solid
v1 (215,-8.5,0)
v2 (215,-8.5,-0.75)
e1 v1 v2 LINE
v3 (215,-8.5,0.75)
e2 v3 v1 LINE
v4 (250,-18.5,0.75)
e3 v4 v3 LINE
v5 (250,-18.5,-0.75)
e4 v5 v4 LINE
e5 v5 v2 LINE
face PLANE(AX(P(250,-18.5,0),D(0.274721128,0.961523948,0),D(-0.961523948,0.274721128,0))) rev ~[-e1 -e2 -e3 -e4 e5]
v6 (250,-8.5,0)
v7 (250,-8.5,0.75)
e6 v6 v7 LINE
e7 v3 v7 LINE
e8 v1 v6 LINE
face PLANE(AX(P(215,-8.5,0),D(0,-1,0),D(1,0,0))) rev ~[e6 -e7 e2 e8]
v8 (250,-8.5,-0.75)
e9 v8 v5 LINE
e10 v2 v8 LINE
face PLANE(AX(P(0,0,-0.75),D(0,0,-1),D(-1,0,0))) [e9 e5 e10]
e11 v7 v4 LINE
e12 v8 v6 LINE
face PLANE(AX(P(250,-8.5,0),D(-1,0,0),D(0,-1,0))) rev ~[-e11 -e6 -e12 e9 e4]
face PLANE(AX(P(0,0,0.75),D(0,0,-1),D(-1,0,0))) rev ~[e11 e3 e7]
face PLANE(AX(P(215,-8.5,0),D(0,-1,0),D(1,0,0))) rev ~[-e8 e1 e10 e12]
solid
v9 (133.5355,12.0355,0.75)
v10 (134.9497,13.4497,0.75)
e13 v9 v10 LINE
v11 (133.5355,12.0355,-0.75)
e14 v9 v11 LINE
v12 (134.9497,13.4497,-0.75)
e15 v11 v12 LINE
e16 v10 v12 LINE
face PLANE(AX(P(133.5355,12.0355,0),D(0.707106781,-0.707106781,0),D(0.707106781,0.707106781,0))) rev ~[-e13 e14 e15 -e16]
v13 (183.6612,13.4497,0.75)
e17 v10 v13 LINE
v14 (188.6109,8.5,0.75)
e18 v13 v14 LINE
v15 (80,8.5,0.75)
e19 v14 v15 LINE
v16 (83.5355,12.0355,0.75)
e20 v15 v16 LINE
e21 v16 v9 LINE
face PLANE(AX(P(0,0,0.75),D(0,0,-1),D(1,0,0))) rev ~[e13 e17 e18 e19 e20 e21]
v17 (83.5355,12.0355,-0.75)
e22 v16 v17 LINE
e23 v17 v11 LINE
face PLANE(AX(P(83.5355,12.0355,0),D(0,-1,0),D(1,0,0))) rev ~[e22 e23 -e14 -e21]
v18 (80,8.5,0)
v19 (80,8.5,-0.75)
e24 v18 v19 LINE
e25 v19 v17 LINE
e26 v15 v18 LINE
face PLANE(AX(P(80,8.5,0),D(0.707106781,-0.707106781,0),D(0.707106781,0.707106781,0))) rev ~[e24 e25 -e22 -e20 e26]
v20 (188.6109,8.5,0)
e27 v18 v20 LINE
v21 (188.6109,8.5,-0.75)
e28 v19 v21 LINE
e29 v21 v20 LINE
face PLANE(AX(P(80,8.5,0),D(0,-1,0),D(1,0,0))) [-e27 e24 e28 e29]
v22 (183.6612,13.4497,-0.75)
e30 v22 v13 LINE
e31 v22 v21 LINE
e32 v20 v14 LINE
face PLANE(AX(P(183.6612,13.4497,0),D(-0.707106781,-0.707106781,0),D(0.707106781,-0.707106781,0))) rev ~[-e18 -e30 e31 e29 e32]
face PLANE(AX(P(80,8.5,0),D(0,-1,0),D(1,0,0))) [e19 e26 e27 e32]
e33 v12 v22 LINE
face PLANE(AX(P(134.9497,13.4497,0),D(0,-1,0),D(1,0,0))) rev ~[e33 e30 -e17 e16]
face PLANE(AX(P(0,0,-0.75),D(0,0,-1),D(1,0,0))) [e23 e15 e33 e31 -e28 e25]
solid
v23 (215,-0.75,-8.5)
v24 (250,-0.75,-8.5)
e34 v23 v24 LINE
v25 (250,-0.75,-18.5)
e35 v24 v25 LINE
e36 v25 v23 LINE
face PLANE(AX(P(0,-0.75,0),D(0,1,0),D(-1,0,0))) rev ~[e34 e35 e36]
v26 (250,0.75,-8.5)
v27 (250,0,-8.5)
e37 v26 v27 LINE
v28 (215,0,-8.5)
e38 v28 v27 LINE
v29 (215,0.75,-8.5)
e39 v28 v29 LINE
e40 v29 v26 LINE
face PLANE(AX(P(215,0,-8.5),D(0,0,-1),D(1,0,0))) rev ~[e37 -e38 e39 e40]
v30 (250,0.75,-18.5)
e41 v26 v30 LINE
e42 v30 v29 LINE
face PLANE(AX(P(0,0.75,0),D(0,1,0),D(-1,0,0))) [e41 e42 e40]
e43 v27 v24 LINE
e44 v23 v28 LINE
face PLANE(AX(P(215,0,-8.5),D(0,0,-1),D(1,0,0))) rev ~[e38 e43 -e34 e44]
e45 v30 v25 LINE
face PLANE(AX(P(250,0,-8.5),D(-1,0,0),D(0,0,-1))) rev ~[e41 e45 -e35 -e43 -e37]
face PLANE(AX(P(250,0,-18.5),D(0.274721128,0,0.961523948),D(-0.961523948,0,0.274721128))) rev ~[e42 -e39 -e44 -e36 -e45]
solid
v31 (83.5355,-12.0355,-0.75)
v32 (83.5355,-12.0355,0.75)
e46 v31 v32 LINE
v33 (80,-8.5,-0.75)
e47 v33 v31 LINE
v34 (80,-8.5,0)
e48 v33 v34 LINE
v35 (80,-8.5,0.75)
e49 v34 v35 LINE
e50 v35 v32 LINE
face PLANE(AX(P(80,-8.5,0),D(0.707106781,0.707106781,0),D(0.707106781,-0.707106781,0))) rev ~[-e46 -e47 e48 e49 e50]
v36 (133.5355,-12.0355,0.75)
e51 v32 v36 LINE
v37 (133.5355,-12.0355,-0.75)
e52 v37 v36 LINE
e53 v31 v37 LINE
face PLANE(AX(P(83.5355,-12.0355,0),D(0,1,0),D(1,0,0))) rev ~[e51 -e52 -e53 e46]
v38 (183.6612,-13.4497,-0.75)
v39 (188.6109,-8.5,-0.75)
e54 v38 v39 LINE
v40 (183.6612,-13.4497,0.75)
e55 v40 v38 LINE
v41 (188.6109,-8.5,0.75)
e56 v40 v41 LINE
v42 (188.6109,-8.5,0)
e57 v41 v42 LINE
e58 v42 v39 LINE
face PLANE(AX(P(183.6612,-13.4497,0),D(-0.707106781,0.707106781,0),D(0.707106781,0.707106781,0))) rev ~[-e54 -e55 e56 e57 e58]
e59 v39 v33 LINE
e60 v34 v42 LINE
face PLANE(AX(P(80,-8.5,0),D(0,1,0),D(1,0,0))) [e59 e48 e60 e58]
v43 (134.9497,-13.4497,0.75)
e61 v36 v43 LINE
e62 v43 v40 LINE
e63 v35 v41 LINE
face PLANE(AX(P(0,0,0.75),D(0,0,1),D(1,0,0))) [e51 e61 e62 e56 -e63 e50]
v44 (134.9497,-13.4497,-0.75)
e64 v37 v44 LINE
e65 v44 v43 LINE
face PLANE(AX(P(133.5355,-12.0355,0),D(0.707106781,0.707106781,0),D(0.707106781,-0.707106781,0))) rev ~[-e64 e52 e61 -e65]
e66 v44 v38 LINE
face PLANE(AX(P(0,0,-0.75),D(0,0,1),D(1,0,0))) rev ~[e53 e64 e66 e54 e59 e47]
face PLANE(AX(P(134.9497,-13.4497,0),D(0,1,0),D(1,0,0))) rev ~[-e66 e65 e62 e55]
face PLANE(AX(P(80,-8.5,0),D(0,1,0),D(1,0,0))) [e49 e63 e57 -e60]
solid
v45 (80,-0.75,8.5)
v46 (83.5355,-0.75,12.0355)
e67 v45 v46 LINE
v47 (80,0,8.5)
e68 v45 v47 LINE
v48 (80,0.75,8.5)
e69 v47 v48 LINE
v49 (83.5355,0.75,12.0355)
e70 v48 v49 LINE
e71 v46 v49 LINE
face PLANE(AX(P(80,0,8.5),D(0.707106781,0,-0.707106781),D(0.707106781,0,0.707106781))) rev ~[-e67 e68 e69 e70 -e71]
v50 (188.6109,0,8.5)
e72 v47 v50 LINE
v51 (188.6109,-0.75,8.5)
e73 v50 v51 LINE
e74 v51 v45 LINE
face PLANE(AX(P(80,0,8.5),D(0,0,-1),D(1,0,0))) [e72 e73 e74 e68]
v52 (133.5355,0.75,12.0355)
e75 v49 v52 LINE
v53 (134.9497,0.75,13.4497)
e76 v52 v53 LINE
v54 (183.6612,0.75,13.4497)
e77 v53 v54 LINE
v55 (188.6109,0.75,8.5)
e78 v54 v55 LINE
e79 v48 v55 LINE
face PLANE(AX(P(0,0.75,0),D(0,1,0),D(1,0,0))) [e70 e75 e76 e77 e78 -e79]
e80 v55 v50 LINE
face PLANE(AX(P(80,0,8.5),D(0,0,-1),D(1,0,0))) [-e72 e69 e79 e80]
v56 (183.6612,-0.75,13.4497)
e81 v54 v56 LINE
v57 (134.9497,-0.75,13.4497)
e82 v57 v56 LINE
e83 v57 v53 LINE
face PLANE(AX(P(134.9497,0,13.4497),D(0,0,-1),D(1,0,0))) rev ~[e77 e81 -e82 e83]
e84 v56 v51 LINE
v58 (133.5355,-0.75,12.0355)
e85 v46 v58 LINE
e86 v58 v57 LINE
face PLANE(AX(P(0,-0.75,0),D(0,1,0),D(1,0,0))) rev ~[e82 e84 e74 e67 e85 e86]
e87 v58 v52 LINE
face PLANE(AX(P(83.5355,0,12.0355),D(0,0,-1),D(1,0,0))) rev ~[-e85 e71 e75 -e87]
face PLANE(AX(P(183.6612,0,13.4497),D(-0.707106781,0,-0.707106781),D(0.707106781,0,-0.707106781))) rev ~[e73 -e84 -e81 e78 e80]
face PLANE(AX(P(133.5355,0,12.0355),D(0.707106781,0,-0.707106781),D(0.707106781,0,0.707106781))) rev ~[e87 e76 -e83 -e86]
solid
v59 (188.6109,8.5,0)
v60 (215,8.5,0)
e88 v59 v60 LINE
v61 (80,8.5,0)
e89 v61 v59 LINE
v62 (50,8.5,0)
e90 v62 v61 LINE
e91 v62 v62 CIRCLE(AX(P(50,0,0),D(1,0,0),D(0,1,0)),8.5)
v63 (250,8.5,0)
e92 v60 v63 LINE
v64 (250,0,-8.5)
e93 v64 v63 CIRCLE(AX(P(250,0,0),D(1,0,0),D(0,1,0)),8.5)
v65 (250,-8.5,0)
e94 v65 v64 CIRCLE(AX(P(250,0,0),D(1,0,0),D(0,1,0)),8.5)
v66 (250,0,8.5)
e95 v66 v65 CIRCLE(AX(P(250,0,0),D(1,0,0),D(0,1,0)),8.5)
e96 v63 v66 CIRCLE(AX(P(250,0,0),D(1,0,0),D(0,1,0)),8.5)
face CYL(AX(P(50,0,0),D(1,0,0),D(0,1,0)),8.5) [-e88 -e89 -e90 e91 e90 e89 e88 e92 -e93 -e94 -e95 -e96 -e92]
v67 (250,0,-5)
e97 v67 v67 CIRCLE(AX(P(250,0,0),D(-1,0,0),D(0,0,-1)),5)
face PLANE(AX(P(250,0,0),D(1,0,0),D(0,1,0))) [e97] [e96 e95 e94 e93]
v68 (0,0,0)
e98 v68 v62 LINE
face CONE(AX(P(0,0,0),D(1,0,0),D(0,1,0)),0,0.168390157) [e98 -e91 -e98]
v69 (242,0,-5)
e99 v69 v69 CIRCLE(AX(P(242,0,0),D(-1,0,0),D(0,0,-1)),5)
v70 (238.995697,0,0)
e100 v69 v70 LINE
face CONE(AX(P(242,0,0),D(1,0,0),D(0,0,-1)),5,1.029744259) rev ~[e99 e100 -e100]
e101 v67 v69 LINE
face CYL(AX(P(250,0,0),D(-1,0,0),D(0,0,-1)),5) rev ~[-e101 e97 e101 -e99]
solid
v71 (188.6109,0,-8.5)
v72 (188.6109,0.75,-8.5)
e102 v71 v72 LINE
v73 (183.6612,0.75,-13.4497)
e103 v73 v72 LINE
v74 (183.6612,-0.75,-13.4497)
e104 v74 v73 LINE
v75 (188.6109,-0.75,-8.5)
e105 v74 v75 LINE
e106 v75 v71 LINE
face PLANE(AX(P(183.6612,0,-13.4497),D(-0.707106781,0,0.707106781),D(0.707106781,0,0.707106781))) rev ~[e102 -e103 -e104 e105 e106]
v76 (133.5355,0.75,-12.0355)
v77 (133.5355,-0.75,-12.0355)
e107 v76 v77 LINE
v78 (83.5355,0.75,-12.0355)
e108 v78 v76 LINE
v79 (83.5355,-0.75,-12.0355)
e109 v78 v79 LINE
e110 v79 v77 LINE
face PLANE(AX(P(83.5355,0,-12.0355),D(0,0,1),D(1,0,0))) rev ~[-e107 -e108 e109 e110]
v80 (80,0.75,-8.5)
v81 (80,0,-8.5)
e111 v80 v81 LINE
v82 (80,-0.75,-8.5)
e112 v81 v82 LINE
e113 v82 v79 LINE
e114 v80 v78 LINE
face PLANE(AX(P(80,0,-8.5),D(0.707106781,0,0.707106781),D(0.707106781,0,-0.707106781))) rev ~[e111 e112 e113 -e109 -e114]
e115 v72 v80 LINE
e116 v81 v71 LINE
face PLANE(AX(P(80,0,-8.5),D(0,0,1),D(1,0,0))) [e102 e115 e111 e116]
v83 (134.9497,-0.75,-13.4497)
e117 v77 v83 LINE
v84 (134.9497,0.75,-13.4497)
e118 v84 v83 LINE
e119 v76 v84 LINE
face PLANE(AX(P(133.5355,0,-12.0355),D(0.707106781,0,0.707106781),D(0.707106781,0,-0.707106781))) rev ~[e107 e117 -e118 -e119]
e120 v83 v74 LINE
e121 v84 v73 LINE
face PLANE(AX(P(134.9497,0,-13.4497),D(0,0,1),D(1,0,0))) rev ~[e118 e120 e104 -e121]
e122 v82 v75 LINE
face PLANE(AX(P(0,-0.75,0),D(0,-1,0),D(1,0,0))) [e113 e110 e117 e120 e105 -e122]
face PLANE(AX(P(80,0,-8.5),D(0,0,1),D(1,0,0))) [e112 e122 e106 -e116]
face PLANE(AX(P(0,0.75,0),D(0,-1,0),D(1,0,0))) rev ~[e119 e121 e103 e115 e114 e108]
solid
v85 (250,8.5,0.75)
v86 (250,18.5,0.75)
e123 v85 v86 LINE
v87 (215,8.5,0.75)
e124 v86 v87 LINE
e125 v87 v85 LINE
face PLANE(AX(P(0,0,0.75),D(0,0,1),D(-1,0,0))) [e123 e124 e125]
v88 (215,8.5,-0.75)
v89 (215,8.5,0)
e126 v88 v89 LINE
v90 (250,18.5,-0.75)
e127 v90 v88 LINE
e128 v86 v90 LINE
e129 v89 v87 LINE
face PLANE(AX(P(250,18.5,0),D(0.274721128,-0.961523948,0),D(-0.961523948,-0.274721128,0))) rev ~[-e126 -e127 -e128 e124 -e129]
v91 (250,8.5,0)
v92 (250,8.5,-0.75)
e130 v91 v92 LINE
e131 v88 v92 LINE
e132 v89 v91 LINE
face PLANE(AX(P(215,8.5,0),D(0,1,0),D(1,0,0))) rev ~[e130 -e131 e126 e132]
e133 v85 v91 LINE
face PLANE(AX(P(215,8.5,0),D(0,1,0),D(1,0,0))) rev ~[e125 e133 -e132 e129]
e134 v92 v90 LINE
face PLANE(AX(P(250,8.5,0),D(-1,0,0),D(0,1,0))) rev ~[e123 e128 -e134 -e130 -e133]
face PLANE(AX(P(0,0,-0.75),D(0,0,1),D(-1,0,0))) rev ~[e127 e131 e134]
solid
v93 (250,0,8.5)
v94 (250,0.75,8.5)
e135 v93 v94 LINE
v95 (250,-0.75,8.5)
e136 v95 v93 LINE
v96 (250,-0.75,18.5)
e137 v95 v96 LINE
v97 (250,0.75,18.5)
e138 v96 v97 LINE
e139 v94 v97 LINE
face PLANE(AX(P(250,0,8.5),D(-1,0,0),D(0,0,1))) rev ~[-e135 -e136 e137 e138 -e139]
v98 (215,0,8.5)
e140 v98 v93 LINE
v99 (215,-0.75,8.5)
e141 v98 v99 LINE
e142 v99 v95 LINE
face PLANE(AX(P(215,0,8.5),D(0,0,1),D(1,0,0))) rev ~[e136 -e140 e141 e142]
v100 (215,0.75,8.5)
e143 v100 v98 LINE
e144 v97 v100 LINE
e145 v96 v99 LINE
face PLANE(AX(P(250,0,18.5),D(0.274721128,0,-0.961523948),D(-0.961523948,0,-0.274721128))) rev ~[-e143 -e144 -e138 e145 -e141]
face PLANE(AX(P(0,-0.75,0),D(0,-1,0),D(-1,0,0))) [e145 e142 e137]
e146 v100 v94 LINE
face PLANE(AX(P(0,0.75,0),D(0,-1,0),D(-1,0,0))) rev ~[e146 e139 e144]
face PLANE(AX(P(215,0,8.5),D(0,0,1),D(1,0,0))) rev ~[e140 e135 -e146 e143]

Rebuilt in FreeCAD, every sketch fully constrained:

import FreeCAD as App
import Part
import Sketcher
from FreeCAD import Vector
Q = App.Units.Quantity


def add_polygon(sketch, points):
    """Adds a closed chain of lines whose ends are joined by coincident constraints."""
    first, n = sketch.GeometryCount, len(points)
    for a, b in zip(points, points[1:] + points[:1]):
        sketch.addGeometry(Part.LineSegment(App.Vector(*a, 0), App.Vector(*b, 0)), False)
    for i in range(n):
        sketch.addConstraint(Sketcher.Constraint("Coincident", first + i, 2, first + (i + 1) % n, 1))

doc = App.newDocument("Part")
body = doc.addObject("PartDesign::Body", "Body")
body.AllowCompound = True

# Sketch on XY plane
sketch1 = doc.addObject("Sketcher::SketchObject", "Sketch")
body.addObject(sketch1)
sketch1.AttachmentSupport = (doc.XY_Plane, [""])
sketch1.MapMode = "FlatFace"
add_polygon(sketch1, [(50, 8), (0, 0), (250, 0), (250, 8)])  # lines 0-3
sketch1.addConstraint([
    Sketcher.Constraint("Horizontal", 1),
    Sketcher.Constraint("Vertical", 2),
    Sketcher.Constraint("Horizontal", 3),
    Sketcher.Constraint("Coincident", 0, 2, -1, 1),
    Sketcher.Constraint("DistanceX", 3, 2, 3, 1, 200.0),
    Sketcher.Constraint("DistanceX", -1, 1, 3, 2, 50.0),
    Sketcher.Constraint("DistanceY", 2, 1, 2, 2, 8.5),
])
revolution = doc.addObject("PartDesign::Revolution", "Revolution")
body.addObject(revolution)
revolution.Profile = sketch1
revolution.ReferenceAxis = (sketch1, ["H_Axis"])
revolution.Angle = 360

# Sketch on XY plane
sketch2 = doc.addObject("Sketcher::SketchObject", "Sketch001")
body.addObject(sketch2)
sketch2.AttachmentSupport = (doc.XY_Plane, [""])
sketch2.MapMode = "FlatFace"
add_polygon(sketch2, [(80, -8.5), (83.5, -12), (133.5, -12), (134.9, -13.4), (183.7, -13.4), (188.6, -8.5)])  # lines 0-5
sketch2.addConstraint([
    Sketcher.Constraint("Horizontal", 1),
    Sketcher.Constraint("Horizontal", 3),
    Sketcher.Constraint("Horizontal", 5),
    Sketcher.Constraint("Parallel", 0, 2),
    Sketcher.Constraint("Perpendicular", 2, 4),
    Sketcher.Constraint("DistanceX", 1, 1, 1, 2, 50.0),
    Sketcher.Constraint("Angle", 0, Q("-45 deg")),
    Sketcher.Constraint("Distance", 0, 5.0),
    Sketcher.Constraint("Distance", 2, 2.0),
    Sketcher.Constraint("DistanceX", -1, 1, 5, 2, 80.0),
    Sketcher.Constraint("DistanceY", 4, 2, -1, 1, 8.5),
    Sketcher.Constraint("DistanceX", 5, 2, 5, 1, 108.611),
])
pad1 = doc.addObject("PartDesign::Pad", "Pad")
body.addObject(pad1)
pad1.Profile = sketch2
pad1.Length = 1.5
pad1.Midplane = True
doc.recompute()

polarpattern = doc.addObject("PartDesign::PolarPattern", "PolarPattern")
body.addObject(polarpattern)
polarpattern.Originals = [pad1]
polarpattern.Axis = (doc.X_Axis, [""])
polarpattern.Angle = 360
polarpattern.Occurrences = 4
body.Tip = polarpattern

# Sketch on YZ plane
sketch3 = doc.addObject("Sketcher::SketchObject", "Sketch002")
body.addObject(sketch3)
sketch3.AttachmentSupport = (doc.YZ_Plane, [""])
sketch3.MapMode = "FlatFace"
sketch3.AttachmentOffset = App.Placement(Vector(0, 0, 250), App.Rotation())
sketch3.addGeometry(Part.Circle(Vector(0, 0, 0), Vector(0, 0, 1), 5), False)
sketch3.addConstraint([
    Sketcher.Constraint("Coincident", 0, 3, -1, 1),
    Sketcher.Constraint("Diameter", 0, 10.0),
])
doc.recompute()
hole = doc.addObject("PartDesign::Hole", "Hole")
body.addObject(hole)
hole.Profile = sketch3
hole.ThreadType = "None"
hole.Diameter = 10
hole.DepthType = "Dimension"
hole.Depth = 8
hole.DrillPoint = "Angled"
hole.DrillPointAngle = 118

# Sketch on XZ plane
sketch4 = doc.addObject("Sketcher::SketchObject", "Sketch003")
body.addObject(sketch4)
sketch4.AttachmentSupport = (doc.XZ_Plane, [""])
sketch4.MapMode = "FlatFace"
add_polygon(sketch4, [(250, -18), (215, -8), (250, -8)])  # lines 0-2
sketch4.addConstraint([
    Sketcher.Constraint("Horizontal", 1),
    Sketcher.Constraint("Vertical", 2),
    Sketcher.Constraint("DistanceX", 1, 1, 1, 2, 35.0),
    Sketcher.Constraint("DistanceY", 2, 2, 2, 1, 10.0),
    Sketcher.Constraint("DistanceX", -1, 1, 0, 2, 215.0),
    Sketcher.Constraint("DistanceY", 0, 2, -1, 1, 8.5),
])
pad2 = doc.addObject("PartDesign::Pad", "Pad001")
body.addObject(pad2)
pad2.Profile = sketch4
pad2.Length = 1.5
pad2.Midplane = True
doc.recompute()

polarpattern2 = doc.addObject("PartDesign::PolarPattern", "PolarPattern001")
body.addObject(polarpattern2)
polarpattern2.Originals = [pad2]
polarpattern2.Axis = (doc.X_Axis, [""])
polarpattern2.Angle = 360
polarpattern2.Occurrences = 4
body.Tip = polarpattern2

doc.recompute()
